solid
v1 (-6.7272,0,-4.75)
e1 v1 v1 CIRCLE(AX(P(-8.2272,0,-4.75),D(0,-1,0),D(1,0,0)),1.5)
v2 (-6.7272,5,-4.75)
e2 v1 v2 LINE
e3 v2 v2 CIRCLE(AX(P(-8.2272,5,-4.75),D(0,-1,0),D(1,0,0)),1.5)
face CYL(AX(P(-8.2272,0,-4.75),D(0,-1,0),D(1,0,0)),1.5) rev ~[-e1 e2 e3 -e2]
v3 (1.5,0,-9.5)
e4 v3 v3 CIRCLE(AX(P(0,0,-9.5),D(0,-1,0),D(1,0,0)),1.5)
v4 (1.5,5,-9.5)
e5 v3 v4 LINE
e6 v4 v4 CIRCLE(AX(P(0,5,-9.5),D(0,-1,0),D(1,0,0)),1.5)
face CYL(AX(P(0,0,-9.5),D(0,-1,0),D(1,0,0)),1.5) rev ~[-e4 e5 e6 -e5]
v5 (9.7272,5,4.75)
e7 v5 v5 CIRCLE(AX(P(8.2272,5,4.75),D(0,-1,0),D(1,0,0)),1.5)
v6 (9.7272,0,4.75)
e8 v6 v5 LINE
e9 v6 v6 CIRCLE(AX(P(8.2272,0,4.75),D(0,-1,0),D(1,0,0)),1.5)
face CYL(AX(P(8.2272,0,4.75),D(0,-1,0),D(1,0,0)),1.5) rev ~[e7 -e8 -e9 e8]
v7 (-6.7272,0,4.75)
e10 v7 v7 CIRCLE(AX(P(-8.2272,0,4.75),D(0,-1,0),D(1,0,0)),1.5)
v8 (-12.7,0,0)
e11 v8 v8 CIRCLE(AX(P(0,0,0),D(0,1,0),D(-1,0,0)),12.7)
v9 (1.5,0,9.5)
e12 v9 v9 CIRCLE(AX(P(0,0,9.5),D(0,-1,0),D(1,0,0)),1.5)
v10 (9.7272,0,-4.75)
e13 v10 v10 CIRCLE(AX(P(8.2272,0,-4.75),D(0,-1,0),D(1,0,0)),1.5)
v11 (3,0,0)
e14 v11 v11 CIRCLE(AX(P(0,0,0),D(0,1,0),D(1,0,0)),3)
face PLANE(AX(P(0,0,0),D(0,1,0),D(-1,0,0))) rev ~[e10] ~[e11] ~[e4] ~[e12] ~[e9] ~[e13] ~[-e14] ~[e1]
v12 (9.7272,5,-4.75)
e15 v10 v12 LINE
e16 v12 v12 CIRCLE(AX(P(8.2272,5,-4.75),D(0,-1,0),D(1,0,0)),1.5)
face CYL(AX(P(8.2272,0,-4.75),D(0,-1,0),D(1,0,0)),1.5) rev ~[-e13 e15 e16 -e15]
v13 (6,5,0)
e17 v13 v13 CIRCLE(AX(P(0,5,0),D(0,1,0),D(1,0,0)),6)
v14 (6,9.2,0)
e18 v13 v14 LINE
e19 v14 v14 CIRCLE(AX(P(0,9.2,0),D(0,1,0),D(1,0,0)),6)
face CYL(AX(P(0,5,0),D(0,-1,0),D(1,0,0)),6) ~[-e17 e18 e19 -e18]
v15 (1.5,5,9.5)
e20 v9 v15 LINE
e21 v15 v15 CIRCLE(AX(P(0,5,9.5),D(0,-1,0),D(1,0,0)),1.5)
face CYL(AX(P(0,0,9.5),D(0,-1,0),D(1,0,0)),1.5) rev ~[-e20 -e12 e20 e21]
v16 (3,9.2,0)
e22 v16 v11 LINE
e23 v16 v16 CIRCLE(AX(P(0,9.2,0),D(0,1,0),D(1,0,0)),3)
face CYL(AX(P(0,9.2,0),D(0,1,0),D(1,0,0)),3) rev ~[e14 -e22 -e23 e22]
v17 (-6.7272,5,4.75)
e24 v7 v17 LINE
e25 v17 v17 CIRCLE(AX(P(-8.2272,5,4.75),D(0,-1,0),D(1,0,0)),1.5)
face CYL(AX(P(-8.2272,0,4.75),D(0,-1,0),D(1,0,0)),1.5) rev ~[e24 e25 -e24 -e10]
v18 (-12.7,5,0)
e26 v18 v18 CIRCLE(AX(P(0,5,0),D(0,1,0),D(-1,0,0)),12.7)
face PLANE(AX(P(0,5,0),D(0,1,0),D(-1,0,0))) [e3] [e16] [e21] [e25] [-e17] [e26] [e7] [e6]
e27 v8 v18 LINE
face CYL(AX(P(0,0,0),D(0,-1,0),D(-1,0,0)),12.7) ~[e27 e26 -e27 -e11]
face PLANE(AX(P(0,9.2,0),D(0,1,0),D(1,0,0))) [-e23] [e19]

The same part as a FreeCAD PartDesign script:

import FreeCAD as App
import Part
import Sketcher

V = App.Vector
Q = App.Units.Quantity

doc = App.newDocument("Part")
body = doc.addObject("PartDesign::Body", "Body")

sketch1 = body.newObject("Sketcher::SketchObject", "Sketch")
sketch1.AttachmentSupport = (doc.getObject("XZ_Plane"), [""])
sketch1.MapMode = "FlatFace"
sketch1.addGeometry(Part.Circle(V(0, 0, 0), V(0, 0, 1), 12.7), False)
sketch1.addConstraint(Sketcher.Constraint("Coincident", 0, 3, -1, 1))
sketch1.addConstraint(Sketcher.Constraint("Diameter", 0, Q("25.4 mm")))
pad1 = body.newObject("PartDesign::Pad", "Pad")
pad1.Profile = sketch1
pad1.Length = 5
pad1.Reversed = True

sketch2 = body.newObject("Sketcher::SketchObject", "Sketch001")
sketch2.AttachmentSupport = (doc.getObject("XZ_Plane"), [""])
sketch2.MapMode = "FlatFace"
sketch2.AttachmentOffset = App.Placement(V(0, 0, -5), App.Rotation())
sketch2.addGeometry(Part.Circle(V(0, 0, 0), V(0, 0, 1), 6), False)
sketch2.addConstraint(Sketcher.Constraint("Coincident", 0, 3, -1, 1))
sketch2.addConstraint(Sketcher.Constraint("Diameter", 0, Q("12 mm")))
pad2 = body.newObject("PartDesign::Pad", "Pad001")
pad2.Profile = sketch2
pad2.Length = 4.2
pad2.Reversed = True

sketch3 = body.newObject("Sketcher::SketchObject", "Sketch002")
sketch3.AttachmentSupport = (doc.getObject("XZ_Plane"), [""])
sketch3.MapMode = "FlatFace"
sketch3.AttachmentOffset = App.Placement(V(0, 0, -9.2), App.Rotation())
sketch3.addGeometry(Part.Circle(V(0, 0, 0), V(0, 0, 1), 3), False)
sketch3.addConstraint(Sketcher.Constraint("Coincident", 0, 3, -1, 1))
sketch3.addConstraint(Sketcher.Constraint("Diameter", 0, Q("6 mm")))
pocket1 = body.newObject("PartDesign::Pocket", "Pocket")
pocket1.Profile = sketch3
pocket1.Type = "ThroughAll"
pocket1.Reversed = True

sketch4 = body.newObject("Sketcher::SketchObject", "Sketch003")
sketch4.AttachmentSupport = (doc.getObject("XZ_Plane"), [""])
sketch4.MapMode = "FlatFace"
sketch4.addGeometry(Part.Circle(V(0, 9.5, 0), V(0, 0, 1), 1.5), False)
sketch4.addGeometry(Part.Circle(V(-8.2272, 4.75, 0), V(0, 0, 1), 1.5), False)
sketch4.addGeometry(Part.Circle(V(-8.2272, -4.75, 0), V(0, 0, 1), 1.5), False)
sketch4.addGeometry(Part.Circle(V(0, -9.5, 0), V(0, 0, 1), 1.5), False)
sketch4.addGeometry(Part.Circle(V(8.2272, -4.75, 0), V(0, 0, 1), 1.5), False)
sketch4.addGeometry(Part.Circle(V(8.2272, 4.75, 0), V(0, 0, 1), 1.5), False)
sketch4.addConstraint(Sketcher.Constraint("Equal", 0, 1))
sketch4.addConstraint(Sketcher.Constraint("Equal", 1, 2))
sketch4.addConstraint(Sketcher.Constraint("Equal", 2, 3))
sketch4.addConstraint(Sketcher.Constraint("Equal", 3, 4))
sketch4.addConstraint(Sketcher.Constraint("Equal", 4, 5))
sketch4.addConstraint(Sketcher.Constraint("Symmetric", 0, 3, 3, 3, -1, 1))
sketch4.addConstraint(Sketcher.Constraint("Symmetric", 1, 3, 4, 3, -1, 1))
sketch4.addConstraint(Sketcher.Constraint("Symmetric", 2, 3, 5, 3, -1, 1))
sketch4.addConstraint(Sketcher.Constraint("Symmetric", 2, 3, 4, 3, -2))
sketch4.addConstraint(Sketcher.Constraint("PointOnObject", 0, 3, -2))
sketch4.addConstraint(Sketcher.Constraint("Diameter", 0, Q("3 mm")))
sketch4.addConstraint(Sketcher.Constraint("DistanceY", -1, 1, 0, 3, Q("9.5 mm")))
sketch4.addConstraint(Sketcher.Constraint("DistanceY", 2, 3, 1, 3, Q("9.5 mm")))
sketch4.addConstraint(Sketcher.Constraint("DistanceX", 1, 3, -1, 1, Q("8.2272 mm")))
pocket2 = body.newObject("PartDesign::Pocket", "Pocket001")
pocket2.Profile = sketch4
pocket2.Type = "ThroughAll"

doc.recompute()
